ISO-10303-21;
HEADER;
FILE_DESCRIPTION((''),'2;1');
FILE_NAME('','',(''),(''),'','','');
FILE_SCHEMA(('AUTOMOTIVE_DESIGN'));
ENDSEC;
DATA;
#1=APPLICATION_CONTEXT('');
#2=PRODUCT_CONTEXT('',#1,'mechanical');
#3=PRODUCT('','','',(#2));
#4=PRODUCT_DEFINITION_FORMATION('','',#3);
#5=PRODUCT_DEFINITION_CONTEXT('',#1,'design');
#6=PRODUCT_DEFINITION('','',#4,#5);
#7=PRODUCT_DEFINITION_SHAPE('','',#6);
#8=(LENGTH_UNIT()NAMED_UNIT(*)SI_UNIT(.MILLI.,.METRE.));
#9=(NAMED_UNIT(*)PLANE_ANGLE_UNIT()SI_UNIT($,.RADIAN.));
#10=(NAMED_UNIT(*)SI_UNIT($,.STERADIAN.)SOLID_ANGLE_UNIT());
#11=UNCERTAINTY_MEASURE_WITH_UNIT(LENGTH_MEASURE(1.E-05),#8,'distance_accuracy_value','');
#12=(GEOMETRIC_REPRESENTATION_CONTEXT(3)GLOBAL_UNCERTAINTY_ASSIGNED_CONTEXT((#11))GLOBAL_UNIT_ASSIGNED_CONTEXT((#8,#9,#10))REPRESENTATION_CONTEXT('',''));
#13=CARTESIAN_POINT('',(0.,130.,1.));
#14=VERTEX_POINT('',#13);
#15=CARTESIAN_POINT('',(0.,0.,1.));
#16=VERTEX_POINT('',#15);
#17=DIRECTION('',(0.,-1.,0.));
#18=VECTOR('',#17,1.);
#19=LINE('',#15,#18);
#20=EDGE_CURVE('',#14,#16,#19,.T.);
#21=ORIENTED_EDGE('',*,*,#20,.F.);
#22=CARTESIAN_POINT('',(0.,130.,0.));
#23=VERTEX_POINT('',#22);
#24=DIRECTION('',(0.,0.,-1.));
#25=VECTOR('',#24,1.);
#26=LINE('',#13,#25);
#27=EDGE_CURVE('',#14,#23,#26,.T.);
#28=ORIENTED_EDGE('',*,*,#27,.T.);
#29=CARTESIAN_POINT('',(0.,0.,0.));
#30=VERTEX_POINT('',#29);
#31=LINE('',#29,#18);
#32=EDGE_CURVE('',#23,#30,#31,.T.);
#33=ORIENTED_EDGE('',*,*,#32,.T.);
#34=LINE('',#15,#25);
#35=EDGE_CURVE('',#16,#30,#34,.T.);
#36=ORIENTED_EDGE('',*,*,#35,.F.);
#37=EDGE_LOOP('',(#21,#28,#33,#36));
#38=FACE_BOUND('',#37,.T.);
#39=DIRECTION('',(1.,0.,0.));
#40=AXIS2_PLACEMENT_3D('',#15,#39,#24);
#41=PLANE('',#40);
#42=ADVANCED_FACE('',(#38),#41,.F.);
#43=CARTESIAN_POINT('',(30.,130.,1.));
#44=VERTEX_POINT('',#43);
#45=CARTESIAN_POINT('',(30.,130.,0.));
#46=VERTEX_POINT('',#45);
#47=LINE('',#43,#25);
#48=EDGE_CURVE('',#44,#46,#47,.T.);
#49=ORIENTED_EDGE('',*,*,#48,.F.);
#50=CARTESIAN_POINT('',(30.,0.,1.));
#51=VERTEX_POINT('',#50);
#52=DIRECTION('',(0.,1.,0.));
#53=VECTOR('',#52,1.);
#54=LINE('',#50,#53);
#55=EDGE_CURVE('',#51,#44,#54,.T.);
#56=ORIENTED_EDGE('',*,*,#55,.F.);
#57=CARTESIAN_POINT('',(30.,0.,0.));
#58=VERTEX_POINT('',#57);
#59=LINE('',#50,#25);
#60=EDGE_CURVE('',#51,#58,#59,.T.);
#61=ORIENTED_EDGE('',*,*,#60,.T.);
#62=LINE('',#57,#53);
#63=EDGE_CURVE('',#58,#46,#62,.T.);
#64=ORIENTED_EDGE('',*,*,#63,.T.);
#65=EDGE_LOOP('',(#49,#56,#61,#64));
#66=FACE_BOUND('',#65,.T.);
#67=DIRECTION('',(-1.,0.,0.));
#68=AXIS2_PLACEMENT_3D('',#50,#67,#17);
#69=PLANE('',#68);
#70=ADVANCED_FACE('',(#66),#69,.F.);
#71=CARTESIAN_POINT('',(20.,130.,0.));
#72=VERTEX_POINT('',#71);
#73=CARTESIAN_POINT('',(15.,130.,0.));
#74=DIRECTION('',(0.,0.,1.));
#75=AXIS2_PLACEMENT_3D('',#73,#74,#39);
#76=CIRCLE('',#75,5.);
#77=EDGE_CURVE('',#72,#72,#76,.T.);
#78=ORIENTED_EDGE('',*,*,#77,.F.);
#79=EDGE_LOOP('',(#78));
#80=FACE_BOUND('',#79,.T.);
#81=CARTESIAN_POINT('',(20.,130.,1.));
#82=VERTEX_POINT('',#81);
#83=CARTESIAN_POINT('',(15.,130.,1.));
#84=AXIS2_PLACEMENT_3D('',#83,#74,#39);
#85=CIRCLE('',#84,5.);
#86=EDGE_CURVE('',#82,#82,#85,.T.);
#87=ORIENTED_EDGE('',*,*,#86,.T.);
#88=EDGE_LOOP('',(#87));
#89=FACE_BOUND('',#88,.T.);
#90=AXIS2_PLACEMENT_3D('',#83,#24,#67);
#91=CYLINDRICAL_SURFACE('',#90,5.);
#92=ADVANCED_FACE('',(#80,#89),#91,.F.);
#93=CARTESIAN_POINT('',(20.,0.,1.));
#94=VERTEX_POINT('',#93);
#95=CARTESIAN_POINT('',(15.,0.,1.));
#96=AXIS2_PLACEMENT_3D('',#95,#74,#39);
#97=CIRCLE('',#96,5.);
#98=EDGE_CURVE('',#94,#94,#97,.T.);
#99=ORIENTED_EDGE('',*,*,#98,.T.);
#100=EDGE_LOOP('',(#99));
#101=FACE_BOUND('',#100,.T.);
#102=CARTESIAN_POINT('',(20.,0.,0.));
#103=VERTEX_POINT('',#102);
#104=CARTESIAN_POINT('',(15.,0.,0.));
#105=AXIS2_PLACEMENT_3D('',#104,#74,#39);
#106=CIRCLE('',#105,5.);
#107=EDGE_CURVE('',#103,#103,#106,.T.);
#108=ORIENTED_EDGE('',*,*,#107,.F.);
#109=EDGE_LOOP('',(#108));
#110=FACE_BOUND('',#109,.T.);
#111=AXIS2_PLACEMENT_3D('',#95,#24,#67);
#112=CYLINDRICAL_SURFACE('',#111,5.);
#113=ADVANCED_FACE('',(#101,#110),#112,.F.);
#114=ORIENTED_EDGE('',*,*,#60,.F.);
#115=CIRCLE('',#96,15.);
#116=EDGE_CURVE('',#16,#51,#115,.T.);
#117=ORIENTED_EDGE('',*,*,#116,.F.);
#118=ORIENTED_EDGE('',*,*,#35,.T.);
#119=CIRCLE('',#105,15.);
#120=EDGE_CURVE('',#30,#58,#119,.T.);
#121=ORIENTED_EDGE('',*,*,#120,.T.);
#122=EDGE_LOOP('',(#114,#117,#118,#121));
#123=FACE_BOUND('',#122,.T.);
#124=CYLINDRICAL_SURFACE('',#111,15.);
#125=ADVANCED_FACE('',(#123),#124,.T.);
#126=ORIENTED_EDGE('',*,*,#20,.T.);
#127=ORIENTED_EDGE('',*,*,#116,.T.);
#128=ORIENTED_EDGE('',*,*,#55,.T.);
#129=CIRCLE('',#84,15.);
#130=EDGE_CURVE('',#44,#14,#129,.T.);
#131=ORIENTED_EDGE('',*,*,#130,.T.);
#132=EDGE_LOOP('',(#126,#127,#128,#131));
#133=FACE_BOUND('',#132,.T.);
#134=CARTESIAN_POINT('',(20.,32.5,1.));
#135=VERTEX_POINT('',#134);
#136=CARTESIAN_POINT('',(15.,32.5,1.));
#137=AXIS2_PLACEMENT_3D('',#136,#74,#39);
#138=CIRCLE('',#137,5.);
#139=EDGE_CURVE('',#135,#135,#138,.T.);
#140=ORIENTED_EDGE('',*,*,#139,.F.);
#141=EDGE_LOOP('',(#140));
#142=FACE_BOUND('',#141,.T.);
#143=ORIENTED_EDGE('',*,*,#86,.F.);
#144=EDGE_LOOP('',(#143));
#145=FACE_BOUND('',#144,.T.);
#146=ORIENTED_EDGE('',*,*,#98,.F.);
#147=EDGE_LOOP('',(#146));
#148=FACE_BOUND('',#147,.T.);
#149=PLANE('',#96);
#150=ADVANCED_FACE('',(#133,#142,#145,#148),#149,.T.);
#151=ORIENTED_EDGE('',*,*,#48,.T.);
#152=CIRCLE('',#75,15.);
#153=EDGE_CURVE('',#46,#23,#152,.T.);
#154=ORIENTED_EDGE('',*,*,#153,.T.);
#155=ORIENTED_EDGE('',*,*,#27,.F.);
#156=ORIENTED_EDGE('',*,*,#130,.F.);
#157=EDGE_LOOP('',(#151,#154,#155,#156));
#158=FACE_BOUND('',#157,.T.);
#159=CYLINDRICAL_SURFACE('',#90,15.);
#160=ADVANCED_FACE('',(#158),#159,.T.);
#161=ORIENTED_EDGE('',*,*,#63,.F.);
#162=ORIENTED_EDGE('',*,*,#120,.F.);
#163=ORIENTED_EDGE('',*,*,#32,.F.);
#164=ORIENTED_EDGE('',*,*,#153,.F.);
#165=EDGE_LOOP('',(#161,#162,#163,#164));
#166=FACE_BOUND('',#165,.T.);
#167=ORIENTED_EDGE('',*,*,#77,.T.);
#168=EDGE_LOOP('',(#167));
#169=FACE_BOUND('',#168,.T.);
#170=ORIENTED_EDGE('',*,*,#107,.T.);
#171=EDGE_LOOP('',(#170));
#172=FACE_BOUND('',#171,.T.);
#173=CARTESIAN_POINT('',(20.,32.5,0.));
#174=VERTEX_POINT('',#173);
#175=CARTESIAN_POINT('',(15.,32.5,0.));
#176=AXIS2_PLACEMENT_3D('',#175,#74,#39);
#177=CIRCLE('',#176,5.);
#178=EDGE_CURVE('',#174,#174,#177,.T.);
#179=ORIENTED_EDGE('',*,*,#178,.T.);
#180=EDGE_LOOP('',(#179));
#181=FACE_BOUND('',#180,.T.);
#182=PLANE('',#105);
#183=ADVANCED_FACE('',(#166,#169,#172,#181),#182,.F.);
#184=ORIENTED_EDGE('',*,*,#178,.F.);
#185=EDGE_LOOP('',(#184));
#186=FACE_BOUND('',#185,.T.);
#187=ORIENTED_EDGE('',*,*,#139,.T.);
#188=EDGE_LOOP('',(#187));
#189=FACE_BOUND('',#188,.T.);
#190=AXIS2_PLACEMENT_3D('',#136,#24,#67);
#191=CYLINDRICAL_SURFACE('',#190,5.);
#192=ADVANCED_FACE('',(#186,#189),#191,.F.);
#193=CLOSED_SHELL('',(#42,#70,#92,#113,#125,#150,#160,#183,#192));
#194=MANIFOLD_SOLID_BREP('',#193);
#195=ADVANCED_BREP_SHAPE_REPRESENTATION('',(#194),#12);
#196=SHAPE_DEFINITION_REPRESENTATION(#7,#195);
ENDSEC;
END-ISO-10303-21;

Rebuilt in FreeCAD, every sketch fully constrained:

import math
import FreeCAD as App
import Part
import Sketcher

V = App.Vector
Q = App.Units.Quantity

doc = App.newDocument("Part")
body = doc.addObject("PartDesign::Body", "Body")

# Sketch on XY plane
sketch1 = body.newObject("Sketcher::SketchObject", "Sketch")
sketch1.AttachmentSupport = (doc.getObject("XY_Plane"), [""])
sketch1.MapMode = "FlatFace"
sketch1.addGeometry(Part.LineSegment(V(0, 130, 0), V(0, 0, 0)), False)
sketch1.addGeometry(Part.ArcOfCircle(Part.Circle(V(15, 0, 0), V(0, 0, 1), 15), math.radians(180), math.radians(360)), False)
sketch1.addGeometry(Part.LineSegment(V(30, 0, 0), V(30, 130, 0)), False)
sketch1.addGeometry(Part.ArcOfCircle(Part.Circle(V(15, 130, 0), V(0, 0, 1), 15), math.radians(0), math.radians(180)), False)
sketch1.addGeometry(Part.Circle(V(15, 0, 0), V(0, 0, 1), 5), False)
sketch1.addGeometry(Part.Circle(V(15, 32, 0), V(0, 0, 1), 5), False)
sketch1.addGeometry(Part.Circle(V(15, 130, 0), V(0, 0, 1), 5), False)
sketch1.addConstraint(Sketcher.Constraint("Tangent", 0, 2, 1, 1))
sketch1.addConstraint(Sketcher.Constraint("Tangent", 1, 2, 2, 1))
sketch1.addConstraint(Sketcher.Constraint("Tangent", 2, 2, 3, 1))
sketch1.addConstraint(Sketcher.Constraint("Tangent", 3, 2, 0, 1))
sketch1.addConstraint(Sketcher.Constraint("Vertical", 0))
sketch1.addConstraint(Sketcher.Constraint("Vertical", 2))
sketch1.addConstraint(Sketcher.Constraint("Coincident", 0, 2, -1, 1))
sketch1.addConstraint(Sketcher.Constraint("Coincident", 4, 3, 1, 3))
sketch1.addConstraint(Sketcher.Constraint("Coincident", 6, 3, 3, 3))
sketch1.addConstraint(Sketcher.Constraint("Equal", 4, 5))
sketch1.addConstraint(Sketcher.Constraint("Equal", 5, 6))
sketch1.addConstraint(Sketcher.Constraint("Vertical", 4, 3, 5, 3))
sketch1.addConstraint(Sketcher.Constraint("Diameter", 4, Q("10 mm")))
sketch1.addConstraint(Sketcher.Constraint("Radius", 1, Q("15 mm")))
sketch1.addConstraint(Sketcher.Constraint("DistanceY", 0, 2, 0, 1, Q("130 mm")))
sketch1.addConstraint(Sketcher.Constraint("DistanceY", -1, 1, 5, 3, Q("32.5 mm")))
pad1 = body.newObject("PartDesign::Pad", "Pad")
pad1.Profile = sketch1
pad1.Length = 1

doc.recompute()
